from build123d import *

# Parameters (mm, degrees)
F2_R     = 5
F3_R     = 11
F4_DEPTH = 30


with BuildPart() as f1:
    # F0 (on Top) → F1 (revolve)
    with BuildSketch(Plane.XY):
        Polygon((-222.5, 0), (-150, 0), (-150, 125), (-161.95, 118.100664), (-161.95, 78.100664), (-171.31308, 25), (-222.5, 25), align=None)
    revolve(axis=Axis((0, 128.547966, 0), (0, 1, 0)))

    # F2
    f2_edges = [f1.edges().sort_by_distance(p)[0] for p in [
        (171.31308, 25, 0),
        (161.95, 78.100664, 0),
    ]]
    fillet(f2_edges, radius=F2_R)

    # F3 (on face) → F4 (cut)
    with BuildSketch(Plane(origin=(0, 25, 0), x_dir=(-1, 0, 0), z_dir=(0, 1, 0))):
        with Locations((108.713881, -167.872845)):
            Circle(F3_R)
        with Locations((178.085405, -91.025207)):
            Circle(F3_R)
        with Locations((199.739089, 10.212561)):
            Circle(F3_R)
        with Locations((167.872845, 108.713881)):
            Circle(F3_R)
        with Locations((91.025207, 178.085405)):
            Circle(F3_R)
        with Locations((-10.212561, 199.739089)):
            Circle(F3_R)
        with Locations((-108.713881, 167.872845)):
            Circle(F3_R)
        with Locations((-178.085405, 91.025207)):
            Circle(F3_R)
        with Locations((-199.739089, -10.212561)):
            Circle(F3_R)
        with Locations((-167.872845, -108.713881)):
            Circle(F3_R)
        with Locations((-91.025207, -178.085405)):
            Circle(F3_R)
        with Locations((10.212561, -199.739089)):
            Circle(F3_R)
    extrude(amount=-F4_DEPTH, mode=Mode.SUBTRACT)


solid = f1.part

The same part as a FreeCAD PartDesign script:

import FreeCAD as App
import Part
import Sketcher
Q = App.Units.Quantity


def edges_at(feature, points):
    """Names of the edges that pass closest to the given points."""
    edges = feature.Shape.Edges
    near = lambda p: min(range(len(edges)), key=lambda i: edges[i].distToShape(Part.Vertex(*p))[0])
    return sorted({f"Edge{near(p) + 1}" for p in points})


def add_polygon(sketch, points):
    """Adds a closed chain of lines whose ends are joined by coincident constraints."""
    first, n = sketch.GeometryCount, len(points)
    for a, b in zip(points, points[1:] + points[:1]):
        sketch.addGeometry(Part.LineSegment(App.Vector(*a, 0), App.Vector(*b, 0)), False)
    for i in range(n):
        sketch.addConstraint(Sketcher.Constraint("Coincident", first + i, 2, first + (i + 1) % n, 1))

doc = App.newDocument("Part")
params = doc.addObject("Spreadsheet::Sheet", "Params")
for row, (alias, value) in enumerate([
    ("sketch1_height", "125 mm"),
    ("sketch1_height2", "40 mm"),
    ("sketch1_height3", "25 mm"),
    ("sketch1_width", "72.5 mm"),
    ("revolution_angle", "360 deg"),
    ("fillet_radius", "5 mm"),
    ("sketch2_diameter", "22 mm"),
    ("pocket1_length", "30 mm"),
], start=1):
    params.set(f"A{row}", alias)
    params.set(f"B{row}", "=" + value)
    params.setAlias(f"B{row}", alias)

body = doc.addObject("PartDesign::Body", "Body")

# Sketch on XY plane
sketch1 = doc.addObject("Sketcher::SketchObject", "Sketch")
body.addObject(sketch1)
sketch1.AttachmentSupport = (doc.XY_Plane, [""])
sketch1.MapMode = "FlatFace"
add_polygon(sketch1, [(-222, 0), (-150, 0), (-150, 125), (-162, 118), (-162, 78), (-171, 25), (-222, 25)])  # lines 0-6
sketch1.addConstraint(Sketcher.Constraint("Horizontal", 0))
sketch1.addConstraint(Sketcher.Constraint("Vertical", 1))
sketch1.addConstraint(Sketcher.Constraint("Vertical", 3))
sketch1.addConstraint(Sketcher.Constraint("Horizontal", 5))
sketch1.addConstraint(Sketcher.Constraint("Vertical", 6))
sketch1.addConstraint(Sketcher.Constraint("PointOnObject", 0, 2, -1))
sketch1.addConstraint(Sketcher.Constraint("DistanceY", 1, 1, 1, 2, Q("125 mm")))
sketch1.addConstraint(Sketcher.Constraint("DistanceY", 3, 2, 3, 1, Q("40 mm")))
sketch1.addConstraint(Sketcher.Constraint("DistanceY", 6, 2, 6, 1, Q("25 mm")))
sketch1.addConstraint(Sketcher.Constraint("Angle", 2, Q("-149.999999 deg")))
sketch1.addConstraint(Sketcher.Constraint("Angle", 4, Q("-100 deg")))
sketch1.addConstraint(Sketcher.Constraint("DistanceX", 0, 1, 0, 2, Q("72.5 mm")))
sketch1.addConstraint(Sketcher.Constraint("DistanceX", 0, 2, -1, 1, Q("150 mm")))
sketch1.addConstraint(Sketcher.Constraint("DistanceX", 2, 2, -1, 1, Q("161.95 mm")))
sketch1.setExpression("Constraints[13]", "Params.sketch1_height")
sketch1.setExpression("Constraints[14]", "Params.sketch1_height2")
sketch1.setExpression("Constraints[15]", "Params.sketch1_height3")
sketch1.setExpression("Constraints[18]", "Params.sketch1_width")
revolution = doc.addObject("PartDesign::Revolution", "Revolution")
body.addObject(revolution)
revolution.Profile = sketch1
revolution.ReferenceAxis = (sketch1, ["V_Axis"])
revolution.setExpression("Angle", "Params.revolution_angle")
doc.recompute()

fillet = doc.addObject("PartDesign::Fillet", "Fillet")
body.addObject(fillet)
fillet.Base = (revolution, edges_at(revolution, [(171.313, 25, 0), (161.95, 78.101, 0)]))
fillet.setExpression("Radius", "Params.fillet_radius")

# Sketch on XZ plane
sketch2 = doc.addObject("Sketcher::SketchObject", "Sketch001")
body.addObject(sketch2)
sketch2.AttachmentSupport = (doc.XZ_Plane, [""])
sketch2.MapMode = "FlatFace"
sketch2.AttachmentOffset = App.Placement(App.Vector(0, 0, -25), App.Rotation())
sketch2.addGeometry(Part.Circle(App.Vector(-109, -168, 0), App.Vector(0, 0, 1), 11), False)
sketch2.addGeometry(Part.Circle(App.Vector(-178, -91, 0), App.Vector(0, 0, 1), 11), False)
sketch2.addGeometry(Part.Circle(App.Vector(-200, 10, 0), App.Vector(0, 0, 1), 11), False)
sketch2.addGeometry(Part.Circle(App.Vector(-168, 109, 0), App.Vector(0, 0, 1), 11), False)
sketch2.addGeometry(Part.Circle(App.Vector(-91, 178, 0), App.Vector(0, 0, 1), 11), False)
sketch2.addGeometry(Part.Circle(App.Vector(10, 200, 0), App.Vector(0, 0, 1), 11), False)
sketch2.addGeometry(Part.Circle(App.Vector(109, 168, 0), App.Vector(0, 0, 1), 11), False)
sketch2.addGeometry(Part.Circle(App.Vector(178, 91, 0), App.Vector(0, 0, 1), 11), False)
sketch2.addGeometry(Part.Circle(App.Vector(200, -10, 0), App.Vector(0, 0, 1), 11), False)
sketch2.addGeometry(Part.Circle(App.Vector(168, -109, 0), App.Vector(0, 0, 1), 11), False)
sketch2.addGeometry(Part.Circle(App.Vector(91, -178, 0), App.Vector(0, 0, 1), 11), False)
sketch2.addGeometry(Part.Circle(App.Vector(-10, -200, 0), App.Vector(0, 0, 1), 11), False)
sketch2.addConstraint(Sketcher.Constraint("Equal", 0, 1))
sketch2.addConstraint(Sketcher.Constraint("Equal", 1, 2))
sketch2.addConstraint(Sketcher.Constraint("Equal", 2, 3))
sketch2.addConstraint(Sketcher.Constraint("Equal", 3, 4))
sketch2.addConstraint(Sketcher.Constraint("Equal", 4, 5))
sketch2.addConstraint(Sketcher.Constraint("Equal", 5, 6))
sketch2.addConstraint(Sketcher.Constraint("Equal", 6, 7))
sketch2.addConstraint(Sketcher.Constraint("Equal", 7, 8))
sketch2.addConstraint(Sketcher.Constraint("Equal", 8, 9))
sketch2.addConstraint(Sketcher.Constraint("Equal", 9, 10))
sketch2.addConstraint(Sketcher.Constraint("Equal", 10, 11))
sketch2.addConstraint(Sketcher.Constraint("Symmetric", 0, 3, 6, 3, -1, 1))
sketch2.addConstraint(Sketcher.Constraint("Symmetric", 1, 3, 7, 3, -1, 1))
sketch2.addConstraint(Sketcher.Constraint("Symmetric", 2, 3, 8, 3, -1, 1))
sketch2.addConstraint(Sketcher.Constraint("Symmetric", 3, 3, 9, 3, -1, 1))
sketch2.addConstraint(Sketcher.Constraint("Symmetric", 4, 3, 10, 3, -1, 1))
sketch2.addConstraint(Sketcher.Constraint("Symmetric", 5, 3, 11, 3, -1, 1))
sketch2.addConstraint(Sketcher.Constraint("Diameter", 0, Q("22 mm")))
sketch2.addConstraint(Sketcher.Constraint("DistanceX", 1, 3, 4, 3, Q("87.060198 mm")))
sketch2.addConstraint(Sketcher.Constraint("DistanceY", 7, 3, 4, 3, Q("87.060198 mm")))
sketch2.addConstraint(Sketcher.Constraint("DistanceX", 0, 3, -1, 1, Q("108.713881 mm")))
sketch2.addConstraint(Sketcher.Constraint("DistanceX", 2, 3, -1, 1, Q("199.739089 mm")))
sketch2.addConstraint(Sketcher.Constraint("DistanceY", -1, 1, 2, 3, Q("10.212561 mm")))
sketch2.addConstraint(Sketcher.Constraint("DistanceY", -1, 1, 3, 3, Q("108.713881 mm")))
sketch2.addConstraint(Sketcher.Constraint("DistanceX", -1, 1, 5, 3, Q("10.212561 mm")))
sketch2.addConstraint(Sketcher.Constraint("DistanceY", -1, 1, 5, 3, Q("199.739089 mm")))
sketch2.addConstraint(Sketcher.Constraint("DistanceY", 0, 3, 1, 3, Q("76.847638 mm")))
sketch2.addConstraint(Sketcher.Constraint("DistanceX", 1, 3, 3, 3, Q("10.21256 mm")))
sketch2.addConstraint(Sketcher.Constraint("DistanceY", 1, 3, 4, 3, Q("269.110612 mm")))
sketch2.addConstraint(Sketcher.Constraint("DistanceX", 4, 3, 7, 3, Q("269.110612 mm")))
sketch2.setExpression("Constraints[17]", "Params.sketch2_diameter")
pocket1 = doc.addObject("PartDesign::Pocket", "Pocket")
body.addObject(pocket1)
pocket1.Profile = sketch2
pocket1.setExpression("Length", "Params.pocket1_length")
pocket1.Reversed = True

doc.recompute()
